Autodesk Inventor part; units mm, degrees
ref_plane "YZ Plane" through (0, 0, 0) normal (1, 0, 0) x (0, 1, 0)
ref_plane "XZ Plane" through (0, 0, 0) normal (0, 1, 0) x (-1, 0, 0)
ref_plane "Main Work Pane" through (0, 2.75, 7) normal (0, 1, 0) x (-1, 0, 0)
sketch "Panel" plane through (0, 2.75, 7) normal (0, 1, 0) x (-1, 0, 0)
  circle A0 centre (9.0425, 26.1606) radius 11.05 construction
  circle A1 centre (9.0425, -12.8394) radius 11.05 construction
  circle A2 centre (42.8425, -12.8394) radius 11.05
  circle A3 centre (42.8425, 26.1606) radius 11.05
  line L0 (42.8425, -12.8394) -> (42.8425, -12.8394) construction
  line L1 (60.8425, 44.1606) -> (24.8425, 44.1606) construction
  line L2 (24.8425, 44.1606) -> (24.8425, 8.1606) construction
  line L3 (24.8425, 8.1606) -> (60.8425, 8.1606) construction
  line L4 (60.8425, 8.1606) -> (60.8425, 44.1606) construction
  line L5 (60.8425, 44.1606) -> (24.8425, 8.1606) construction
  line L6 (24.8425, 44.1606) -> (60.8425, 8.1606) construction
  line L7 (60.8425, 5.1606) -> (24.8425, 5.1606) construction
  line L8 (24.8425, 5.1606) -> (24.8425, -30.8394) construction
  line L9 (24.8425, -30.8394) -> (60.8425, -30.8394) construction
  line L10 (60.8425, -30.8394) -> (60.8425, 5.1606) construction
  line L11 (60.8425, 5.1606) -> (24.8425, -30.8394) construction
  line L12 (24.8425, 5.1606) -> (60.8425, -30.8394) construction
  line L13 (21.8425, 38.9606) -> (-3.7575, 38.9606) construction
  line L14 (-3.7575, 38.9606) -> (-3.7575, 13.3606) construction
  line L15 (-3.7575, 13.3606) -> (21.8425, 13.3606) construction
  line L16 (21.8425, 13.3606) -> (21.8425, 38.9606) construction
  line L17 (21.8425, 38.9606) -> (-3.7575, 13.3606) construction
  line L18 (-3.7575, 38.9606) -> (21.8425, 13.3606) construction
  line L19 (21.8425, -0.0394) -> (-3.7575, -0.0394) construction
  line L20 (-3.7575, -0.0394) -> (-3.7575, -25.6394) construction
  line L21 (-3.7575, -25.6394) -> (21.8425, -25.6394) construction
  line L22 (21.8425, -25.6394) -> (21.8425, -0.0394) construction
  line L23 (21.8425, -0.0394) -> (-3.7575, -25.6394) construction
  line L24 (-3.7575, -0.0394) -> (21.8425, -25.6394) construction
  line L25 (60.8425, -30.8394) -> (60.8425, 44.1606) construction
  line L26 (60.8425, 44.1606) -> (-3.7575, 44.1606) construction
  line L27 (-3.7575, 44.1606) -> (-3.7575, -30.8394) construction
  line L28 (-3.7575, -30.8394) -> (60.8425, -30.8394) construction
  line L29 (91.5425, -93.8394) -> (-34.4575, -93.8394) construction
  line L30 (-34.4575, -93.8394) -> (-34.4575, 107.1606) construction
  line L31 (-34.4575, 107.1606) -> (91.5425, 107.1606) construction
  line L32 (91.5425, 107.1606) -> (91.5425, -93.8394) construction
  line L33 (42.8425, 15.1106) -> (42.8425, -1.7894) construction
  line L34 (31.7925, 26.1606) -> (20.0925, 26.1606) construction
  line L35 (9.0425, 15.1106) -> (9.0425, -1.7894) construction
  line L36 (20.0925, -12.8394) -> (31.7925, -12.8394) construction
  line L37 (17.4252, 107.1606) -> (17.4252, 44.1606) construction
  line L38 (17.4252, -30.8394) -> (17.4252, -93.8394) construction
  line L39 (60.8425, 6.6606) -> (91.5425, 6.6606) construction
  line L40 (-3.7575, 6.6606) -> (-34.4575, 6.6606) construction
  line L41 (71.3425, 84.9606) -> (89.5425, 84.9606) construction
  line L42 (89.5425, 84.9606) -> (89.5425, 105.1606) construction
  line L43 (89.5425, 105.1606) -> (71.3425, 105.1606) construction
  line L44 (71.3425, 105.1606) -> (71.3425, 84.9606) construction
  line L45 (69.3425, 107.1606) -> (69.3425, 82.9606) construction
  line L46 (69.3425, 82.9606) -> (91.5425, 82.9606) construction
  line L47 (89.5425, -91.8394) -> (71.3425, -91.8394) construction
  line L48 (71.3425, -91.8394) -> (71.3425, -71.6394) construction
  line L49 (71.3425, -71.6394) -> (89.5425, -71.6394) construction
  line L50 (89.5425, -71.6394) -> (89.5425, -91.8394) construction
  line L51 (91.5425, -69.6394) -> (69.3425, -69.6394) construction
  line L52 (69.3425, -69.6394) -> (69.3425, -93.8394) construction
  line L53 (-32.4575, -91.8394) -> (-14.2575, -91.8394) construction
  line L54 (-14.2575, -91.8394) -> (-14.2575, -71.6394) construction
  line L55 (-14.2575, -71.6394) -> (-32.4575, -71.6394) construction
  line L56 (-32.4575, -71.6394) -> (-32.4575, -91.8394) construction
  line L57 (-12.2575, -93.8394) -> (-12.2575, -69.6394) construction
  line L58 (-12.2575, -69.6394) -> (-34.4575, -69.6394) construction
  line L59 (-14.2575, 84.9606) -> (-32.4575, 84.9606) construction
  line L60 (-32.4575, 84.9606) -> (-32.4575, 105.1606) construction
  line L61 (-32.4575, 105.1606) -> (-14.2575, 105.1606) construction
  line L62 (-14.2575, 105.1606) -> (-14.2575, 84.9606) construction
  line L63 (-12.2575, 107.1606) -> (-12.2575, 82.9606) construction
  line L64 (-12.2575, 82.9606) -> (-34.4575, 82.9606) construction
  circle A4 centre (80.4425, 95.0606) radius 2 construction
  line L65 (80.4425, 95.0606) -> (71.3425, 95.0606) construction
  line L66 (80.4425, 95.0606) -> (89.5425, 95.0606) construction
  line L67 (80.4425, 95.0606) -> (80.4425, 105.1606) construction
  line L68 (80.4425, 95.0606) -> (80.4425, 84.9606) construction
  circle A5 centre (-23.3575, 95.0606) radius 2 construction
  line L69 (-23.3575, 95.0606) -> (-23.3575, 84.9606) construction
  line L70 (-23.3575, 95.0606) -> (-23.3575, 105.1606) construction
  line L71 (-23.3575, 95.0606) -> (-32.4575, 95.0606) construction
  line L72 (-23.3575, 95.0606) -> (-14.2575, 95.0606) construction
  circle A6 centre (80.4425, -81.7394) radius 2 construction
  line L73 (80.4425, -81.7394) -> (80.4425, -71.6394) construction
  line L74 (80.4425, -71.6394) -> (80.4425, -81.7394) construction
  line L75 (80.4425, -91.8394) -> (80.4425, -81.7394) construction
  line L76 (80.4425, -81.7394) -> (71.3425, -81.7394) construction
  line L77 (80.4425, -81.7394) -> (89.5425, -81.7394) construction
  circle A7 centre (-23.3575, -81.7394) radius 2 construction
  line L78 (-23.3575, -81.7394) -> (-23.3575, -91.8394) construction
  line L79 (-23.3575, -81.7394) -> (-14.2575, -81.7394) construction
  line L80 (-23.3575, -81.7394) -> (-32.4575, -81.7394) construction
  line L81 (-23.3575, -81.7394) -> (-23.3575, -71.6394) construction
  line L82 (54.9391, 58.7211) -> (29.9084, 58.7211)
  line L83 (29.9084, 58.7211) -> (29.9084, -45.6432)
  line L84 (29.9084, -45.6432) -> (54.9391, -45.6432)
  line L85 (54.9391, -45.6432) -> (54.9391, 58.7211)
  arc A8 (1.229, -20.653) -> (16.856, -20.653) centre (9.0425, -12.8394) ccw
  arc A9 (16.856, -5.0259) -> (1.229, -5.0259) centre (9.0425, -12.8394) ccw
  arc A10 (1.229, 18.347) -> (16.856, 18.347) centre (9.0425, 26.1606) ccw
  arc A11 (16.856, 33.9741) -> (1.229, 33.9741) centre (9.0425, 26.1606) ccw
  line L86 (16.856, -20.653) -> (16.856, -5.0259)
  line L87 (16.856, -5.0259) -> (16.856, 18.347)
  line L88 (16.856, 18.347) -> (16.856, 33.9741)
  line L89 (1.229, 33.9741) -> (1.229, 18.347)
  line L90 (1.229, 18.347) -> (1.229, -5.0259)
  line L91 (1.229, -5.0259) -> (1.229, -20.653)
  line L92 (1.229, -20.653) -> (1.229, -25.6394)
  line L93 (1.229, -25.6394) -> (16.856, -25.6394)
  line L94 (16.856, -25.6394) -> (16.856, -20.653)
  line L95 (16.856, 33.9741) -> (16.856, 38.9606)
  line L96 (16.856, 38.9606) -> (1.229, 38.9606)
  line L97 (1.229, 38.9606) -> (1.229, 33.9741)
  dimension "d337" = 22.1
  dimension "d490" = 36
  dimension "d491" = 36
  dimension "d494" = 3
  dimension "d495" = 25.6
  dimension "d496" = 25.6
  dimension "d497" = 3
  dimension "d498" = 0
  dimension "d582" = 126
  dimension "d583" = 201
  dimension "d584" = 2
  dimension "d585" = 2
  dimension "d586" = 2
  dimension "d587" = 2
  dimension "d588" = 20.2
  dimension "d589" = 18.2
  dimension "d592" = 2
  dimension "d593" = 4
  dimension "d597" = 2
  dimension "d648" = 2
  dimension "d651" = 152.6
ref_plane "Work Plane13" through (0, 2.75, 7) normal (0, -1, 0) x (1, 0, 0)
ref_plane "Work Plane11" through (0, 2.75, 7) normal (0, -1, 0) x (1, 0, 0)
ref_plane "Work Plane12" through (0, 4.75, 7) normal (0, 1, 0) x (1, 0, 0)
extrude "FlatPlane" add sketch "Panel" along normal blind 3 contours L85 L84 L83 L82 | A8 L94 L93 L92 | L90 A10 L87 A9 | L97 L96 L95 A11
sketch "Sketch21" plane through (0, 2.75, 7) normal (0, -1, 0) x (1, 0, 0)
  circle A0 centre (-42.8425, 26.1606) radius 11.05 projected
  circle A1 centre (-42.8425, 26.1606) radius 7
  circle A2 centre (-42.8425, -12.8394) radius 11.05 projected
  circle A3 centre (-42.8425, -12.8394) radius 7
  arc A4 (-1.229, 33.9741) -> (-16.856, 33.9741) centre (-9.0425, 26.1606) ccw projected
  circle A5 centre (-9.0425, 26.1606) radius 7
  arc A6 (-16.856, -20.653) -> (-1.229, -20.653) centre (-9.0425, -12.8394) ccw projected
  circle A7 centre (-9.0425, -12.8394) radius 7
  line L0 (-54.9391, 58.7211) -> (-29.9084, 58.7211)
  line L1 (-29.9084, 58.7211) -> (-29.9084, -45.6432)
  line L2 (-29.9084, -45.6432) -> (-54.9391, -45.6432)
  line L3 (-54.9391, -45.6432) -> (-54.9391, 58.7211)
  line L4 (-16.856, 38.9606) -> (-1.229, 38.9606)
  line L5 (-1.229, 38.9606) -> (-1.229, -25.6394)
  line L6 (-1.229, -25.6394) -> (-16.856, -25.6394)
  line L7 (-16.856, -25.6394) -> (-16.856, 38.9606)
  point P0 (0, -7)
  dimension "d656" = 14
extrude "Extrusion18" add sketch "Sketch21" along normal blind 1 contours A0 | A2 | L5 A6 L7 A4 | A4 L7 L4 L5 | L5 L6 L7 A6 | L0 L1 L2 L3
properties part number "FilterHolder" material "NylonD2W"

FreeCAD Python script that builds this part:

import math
import FreeCAD as App
import Part
import Sketcher

V = App.Vector
Q = App.Units.Quantity


def add_polygon(sketch, points):
    """Adds a closed chain of lines whose ends are joined by coincident constraints."""
    first, n = sketch.GeometryCount, len(points)
    for a, b in zip(points, points[1:] + points[:1]):
        sketch.addGeometry(Part.LineSegment(App.Vector(*a, 0), App.Vector(*b, 0)), False)
    for i in range(n):
        sketch.addConstraint(Sketcher.Constraint("Coincident", first + i, 2, first + (i + 1) % n, 1))

doc = App.newDocument("Part")
body = doc.addObject("PartDesign::Body", "Body")
body.AllowCompound = True

# Sketch on XZ plane
sketch1 = body.newObject("Sketcher::SketchObject", "Sketch")
sketch1.AttachmentSupport = (doc.getObject("XZ_Plane"), [""])
sketch1.MapMode = "FlatFace"
sketch1.AttachmentOffset = App.Placement(V(0, 0, -2.75), App.Rotation())
add_polygon(sketch1, [(-54.9, -38.6), (-54.9, 65.7), (-29.9, 65.7), (-29.9, -38.6)])  # lines 0-3
sketch1.addGeometry(Part.Circle(V(-42.8, -5.8, 0), V(0, 0, 1), 11.1), False)  # 4
sketch1.addGeometry(Part.Circle(V(-42.8, 33.2, 0), V(0, 0, 1), 11.1), False)  # 5
sketch1.addGeometry(Part.ArcOfCircle(Part.Circle(V(-9, -5.8, 0), V(0, 0, 1), 11.1), math.radians(-135), math.radians(-45)), False)  # 6
sketch1.addGeometry(Part.LineSegment(V(-1.2, -13.7, 0), V(-1.2, -18.6, 0)), False)  # 7
sketch1.addGeometry(Part.LineSegment(V(-1.2, -18.6, 0), V(-16.9, -18.6, 0)), False)  # 8
sketch1.addGeometry(Part.LineSegment(V(-16.9, -18.6, 0), V(-16.9, -13.7, 0)), False)  # 9
sketch1.addGeometry(Part.LineSegment(V(-1.2, 25.3, 0), V(-1.2, 2, 0)), False)  # 10
sketch1.addGeometry(Part.ArcOfCircle(Part.Circle(V(-9, -5.8, 0), V(0, 0, 1), 11), math.radians(45), math.radians(135)), False)  # 11
sketch1.addGeometry(Part.LineSegment(V(-16.9, 2, 0), V(-16.9, 25.3, 0)), False)  # 12
sketch1.addGeometry(Part.ArcOfCircle(Part.Circle(V(-9, 33.2, 0), V(0, 0, 1), 11.1), math.radians(-135), math.radians(-45)), False)  # 13
sketch1.addGeometry(Part.LineSegment(V(-1.2, 46, 0), V(-1.2, 41, 0)), False)  # 14
sketch1.addGeometry(Part.ArcOfCircle(Part.Circle(V(-9, 33.2, 0), V(0, 0, 1), 11), math.radians(45), math.radians(135)), False)  # 15
sketch1.addGeometry(Part.LineSegment(V(-16.9, 41, 0), V(-16.9, 46, 0)), False)  # 16
sketch1.addGeometry(Part.LineSegment(V(-16.9, 46, 0), V(-1.2, 46, 0)), False)  # 17
sketch1.addConstraint([
    Sketcher.Constraint("Coincident", 6, 2, 7, 1),
    Sketcher.Constraint("Coincident", 7, 2, 8, 1),
    Sketcher.Constraint("Coincident", 8, 2, 9, 1),
    Sketcher.Constraint("Coincident", 9, 2, 6, 1),
    Sketcher.Constraint("Coincident", 10, 2, 11, 1),
    Sketcher.Constraint("Coincident", 11, 2, 12, 1),
    Sketcher.Constraint("Coincident", 12, 2, 13, 1),
    Sketcher.Constraint("Coincident", 13, 2, 10, 1),
    Sketcher.Constraint("Coincident", 14, 2, 15, 1),
    Sketcher.Constraint("Coincident", 15, 2, 16, 1),
    Sketcher.Constraint("Coincident", 16, 2, 17, 1),
    Sketcher.Constraint("Coincident", 17, 2, 14, 1),
    Sketcher.Constraint("Vertical", 0),
    Sketcher.Constraint("Horizontal", 1),
    Sketcher.Constraint("Vertical", 2),
    Sketcher.Constraint("Horizontal", 3),
    Sketcher.Constraint("Vertical", 7),
    Sketcher.Constraint("Horizontal", 8),
    Sketcher.Constraint("Vertical", 9),
    Sketcher.Constraint("Vertical", 10),
    Sketcher.Constraint("Vertical", 12),
    Sketcher.Constraint("Vertical", 14),
    Sketcher.Constraint("Vertical", 16),
    Sketcher.Constraint("Horizontal", 17),
    Sketcher.Constraint("Coincident", 11, 3, 6, 3),
    Sketcher.Constraint("Coincident", 15, 3, 13, 3),
    Sketcher.Constraint("Equal", 4, 5),
    Sketcher.Constraint("Equal", 5, 6),
    Sketcher.Constraint("Equal", 6, 11),
    Sketcher.Constraint("Equal", 11, 13),
    Sketcher.Constraint("Equal", 13, 15),
    Sketcher.Constraint("Horizontal", 4, 3, 6, 3),
    Sketcher.Constraint("Horizontal", 5, 3, 13, 3),
    Sketcher.Constraint("Horizontal", 6, 2, 9, 2),
    Sketcher.Constraint("Horizontal", 10, 2, 11, 2),
    Sketcher.Constraint("Horizontal", 12, 2, 13, 2),
    Sketcher.Constraint("Horizontal", 14, 2, 15, 2),
    Sketcher.Constraint("Vertical", 4, 3, 5, 3),
    Sketcher.Constraint("Vertical", 7, 2, 10, 2),
    Sketcher.Constraint("Vertical", 13, 2, 14, 2),
    Sketcher.Constraint("Equal", 9, 14),
    Sketcher.Constraint("Diameter", 4, Q("22.1 mm")),
    Sketcher.Constraint("DistanceY", 4, 3, 5, 3, Q("39 mm")),
    Sketcher.Constraint("DistanceX", 4, 3, 6, 3, Q("33.8 mm")),
    Sketcher.Constraint("DistanceY", 7, 2, 6, 3, Q("12.8 mm")),
    Sketcher.Constraint("DistanceX", 8, 2, 8, 1, Q("15.627 mm")),
    Sketcher.Constraint("DistanceX", 1, 1, 1, 2, Q("25.0307 mm")),
    Sketcher.Constraint("DistanceY", 0, 1, 0, 2, Q("104.3643 mm")),
    Sketcher.Constraint("DistanceX", 0, 2, -1, 1, Q("54.939 mm")),
    Sketcher.Constraint("DistanceY", -1, 1, 0, 2, Q("65.721 mm")),
    Sketcher.Constraint("DistanceX", 6, 2, -1, 1, Q("1.229 mm")),
    Sketcher.Constraint("DistanceY", 6, 2, -1, 1, Q("13.653 mm")),
])
pad1 = body.newObject("PartDesign::Pad", "Pad")
pad1.Profile = sketch1
pad1.Length = 3
pad1.Reversed = True

# Sketch on XZ plane
sketch2 = body.newObject("Sketcher::SketchObject", "Sketch001")
sketch2.AttachmentSupport = (doc.getObject("XZ_Plane"), [""])
sketch2.MapMode = "FlatFace"
sketch2.AttachmentOffset = App.Placement(V(0, 0, -2.75), App.Rotation())
add_polygon(sketch2, [(-30, 66), (-55, 66), (-55, -39), (-30, -39)])  # lines 0-3
sketch2.addGeometry(Part.Circle(V(-43, 33, 0), V(0, 0, 1), 7), False)  # 4
sketch2.addGeometry(Part.Circle(V(-43, -6, 0), V(0, 0, 1), 7), False)  # 5
add_polygon(sketch2, [(-1, 46), (-17, 46), (-17, -19), (-1, -19)])  # lines 6-9
sketch2.addGeometry(Part.Circle(V(-9, -6, 0), V(0, 0, 1), 7), False)  # 10
sketch2.addGeometry(Part.Circle(V(-9, 33, 0), V(0, 0, 1), 7), False)  # 11
sketch2.addConstraint([
    Sketcher.Constraint("Horizontal", 0),
    Sketcher.Constraint("Vertical", 1),
    Sketcher.Constraint("Horizontal", 2),
    Sketcher.Constraint("Vertical", 3),
    Sketcher.Constraint("Horizontal", 6),
    Sketcher.Constraint("Vertical", 7),
    Sketcher.Constraint("Horizontal", 8),
    Sketcher.Constraint("Vertical", 9),
    Sketcher.Constraint("Equal", 4, 5),
    Sketcher.Constraint("Equal", 5, 10),
    Sketcher.Constraint("Equal", 10, 11),
    Sketcher.Constraint("Horizontal", 5, 3, 10, 3),
    Sketcher.Constraint("Horizontal", 4, 3, 11, 3),
    Sketcher.Constraint("Vertical", 4, 3, 5, 3),
    Sketcher.Constraint("Vertical", 10, 3, 11, 3),
    Sketcher.Constraint("Diameter", 4, Q("14 mm")),
    Sketcher.Constraint("DistanceY", 7, 2, 7, 1, Q("64.6 mm")),
    Sketcher.Constraint("DistanceY", 5, 3, 4, 3, Q("39 mm")),
    Sketcher.Constraint("DistanceX", 5, 3, 10, 3, Q("33.8 mm")),
    Sketcher.Constraint("DistanceY", 11, 3, 6, 2, Q("12.8 mm")),
    Sketcher.Constraint("DistanceX", 6, 2, 6, 1, Q("15.627 mm")),
    Sketcher.Constraint("DistanceX", 0, 2, 0, 1, Q("25.0307 mm")),
    Sketcher.Constraint("DistanceY", 1, 2, 1, 1, Q("104.3643 mm")),
    Sketcher.Constraint("DistanceX", 0, 2, -1, 1, Q("54.939 mm")),
    Sketcher.Constraint("DistanceY", -1, 1, 0, 2, Q("65.721 mm")),
    Sketcher.Constraint("DistanceX", 6, 2, -1, 1, Q("16.856 mm")),
    Sketcher.Constraint("DistanceX", 5, 3, 2, 2, Q("12.934 mm")),
    Sketcher.Constraint("DistanceY", -1, 1, 4, 3, Q("33.1606 mm")),
])
pad2 = body.newObject("PartDesign::Pad", "Pad001")
pad2.Profile = sketch2
pad2.Length = 1

doc.recompute()
